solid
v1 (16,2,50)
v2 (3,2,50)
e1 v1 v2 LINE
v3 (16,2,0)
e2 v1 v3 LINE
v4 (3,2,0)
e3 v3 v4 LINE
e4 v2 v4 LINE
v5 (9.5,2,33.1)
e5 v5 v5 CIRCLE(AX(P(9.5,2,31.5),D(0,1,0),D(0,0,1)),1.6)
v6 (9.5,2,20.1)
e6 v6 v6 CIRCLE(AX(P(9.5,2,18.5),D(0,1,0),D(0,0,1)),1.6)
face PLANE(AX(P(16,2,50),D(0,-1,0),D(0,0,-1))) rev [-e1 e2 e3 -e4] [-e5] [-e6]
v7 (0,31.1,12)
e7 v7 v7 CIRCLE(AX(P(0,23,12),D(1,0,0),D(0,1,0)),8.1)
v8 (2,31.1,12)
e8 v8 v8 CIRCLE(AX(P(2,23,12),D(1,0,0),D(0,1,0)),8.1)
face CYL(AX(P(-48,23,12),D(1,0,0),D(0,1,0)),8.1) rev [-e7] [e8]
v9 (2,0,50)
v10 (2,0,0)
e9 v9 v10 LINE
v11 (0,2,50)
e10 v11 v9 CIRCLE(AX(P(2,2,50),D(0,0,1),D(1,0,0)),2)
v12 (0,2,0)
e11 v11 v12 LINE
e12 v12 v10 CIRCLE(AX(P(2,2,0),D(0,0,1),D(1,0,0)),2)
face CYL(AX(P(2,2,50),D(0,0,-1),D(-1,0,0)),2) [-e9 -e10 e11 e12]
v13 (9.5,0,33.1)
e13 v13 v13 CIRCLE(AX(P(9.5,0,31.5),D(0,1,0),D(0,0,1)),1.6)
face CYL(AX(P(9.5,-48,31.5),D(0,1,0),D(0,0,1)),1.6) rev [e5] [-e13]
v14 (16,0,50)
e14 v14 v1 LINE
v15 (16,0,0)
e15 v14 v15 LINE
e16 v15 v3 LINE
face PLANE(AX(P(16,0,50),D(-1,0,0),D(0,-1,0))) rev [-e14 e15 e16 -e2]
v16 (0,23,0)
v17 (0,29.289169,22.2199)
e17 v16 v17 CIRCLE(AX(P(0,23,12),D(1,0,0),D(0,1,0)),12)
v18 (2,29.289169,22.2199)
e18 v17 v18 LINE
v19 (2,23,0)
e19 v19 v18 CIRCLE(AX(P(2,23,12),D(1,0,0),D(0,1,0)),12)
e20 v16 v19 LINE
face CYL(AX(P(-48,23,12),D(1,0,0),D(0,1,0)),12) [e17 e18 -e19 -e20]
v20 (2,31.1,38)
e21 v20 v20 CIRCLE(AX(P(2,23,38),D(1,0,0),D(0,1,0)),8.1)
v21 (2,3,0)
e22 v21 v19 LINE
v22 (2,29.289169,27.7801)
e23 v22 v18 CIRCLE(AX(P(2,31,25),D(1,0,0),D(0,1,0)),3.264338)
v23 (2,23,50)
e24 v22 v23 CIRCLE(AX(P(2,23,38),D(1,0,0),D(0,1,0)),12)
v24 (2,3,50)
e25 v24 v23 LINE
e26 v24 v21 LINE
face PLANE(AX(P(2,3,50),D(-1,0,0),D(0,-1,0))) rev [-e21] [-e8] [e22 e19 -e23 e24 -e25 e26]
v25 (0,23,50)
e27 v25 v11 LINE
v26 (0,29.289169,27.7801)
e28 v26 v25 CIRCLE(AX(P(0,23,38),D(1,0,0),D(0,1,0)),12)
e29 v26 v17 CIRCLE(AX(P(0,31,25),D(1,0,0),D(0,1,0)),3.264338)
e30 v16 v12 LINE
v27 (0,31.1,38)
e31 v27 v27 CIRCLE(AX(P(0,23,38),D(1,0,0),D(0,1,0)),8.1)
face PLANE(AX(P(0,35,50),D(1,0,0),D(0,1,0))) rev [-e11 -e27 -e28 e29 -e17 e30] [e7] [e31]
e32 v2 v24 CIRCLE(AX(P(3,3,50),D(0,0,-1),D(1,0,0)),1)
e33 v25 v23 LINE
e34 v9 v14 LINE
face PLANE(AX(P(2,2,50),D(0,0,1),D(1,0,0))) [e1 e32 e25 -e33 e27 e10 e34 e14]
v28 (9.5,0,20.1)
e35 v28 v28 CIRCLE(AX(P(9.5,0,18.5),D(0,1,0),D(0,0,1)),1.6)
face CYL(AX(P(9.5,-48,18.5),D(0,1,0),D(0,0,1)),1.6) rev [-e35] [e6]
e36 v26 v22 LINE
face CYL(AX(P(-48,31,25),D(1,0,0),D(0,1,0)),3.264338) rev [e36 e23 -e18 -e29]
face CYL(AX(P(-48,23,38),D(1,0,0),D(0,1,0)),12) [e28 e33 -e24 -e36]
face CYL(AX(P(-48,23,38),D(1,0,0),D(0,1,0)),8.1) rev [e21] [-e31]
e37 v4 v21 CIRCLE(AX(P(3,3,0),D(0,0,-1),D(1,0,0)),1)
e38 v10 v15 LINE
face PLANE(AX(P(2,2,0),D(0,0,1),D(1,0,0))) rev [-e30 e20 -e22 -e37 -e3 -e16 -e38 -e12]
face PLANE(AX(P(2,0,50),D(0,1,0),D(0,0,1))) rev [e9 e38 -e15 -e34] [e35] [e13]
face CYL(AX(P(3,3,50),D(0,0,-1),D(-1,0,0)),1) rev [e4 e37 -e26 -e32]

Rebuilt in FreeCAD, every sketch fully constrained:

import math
import FreeCAD as App
import Part
import Sketcher

V = App.Vector
Q = App.Units.Quantity

doc = App.newDocument("Part")
body = doc.addObject("PartDesign::Body", "Body")

# Sketch on XY plane
sketch1 = body.newObject("Sketcher::SketchObject", "Sketch")
sketch1.AttachmentSupport = (doc.getObject("XY_Plane"), [""])
sketch1.MapMode = "FlatFace"
sketch1.addGeometry([
    Part.LineSegment(V(0, 35, 0), V(0, 2, 0)),  # 0
    Part.ArcOfCircle(Part.Circle(V(2, 2, 0), V(0, 0, 1), 2), math.radians(-180), math.radians(-90)),  # 1
    Part.LineSegment(V(2, 0, 0), V(16, 0, 0)),  # 2
    Part.LineSegment(V(16, 0, 0), V(16, 2, 0)),  # 3
    Part.LineSegment(V(16, 2, 0), V(3, 2, 0)),  # 4
    Part.ArcOfCircle(Part.Circle(V(3, 3, 0), V(0, 0, 1), 1), math.radians(-180), math.radians(-90)),  # 5
    Part.LineSegment(V(2, 3, 0), V(2, 35, 0)),  # 6
    Part.LineSegment(V(2, 35, 0), V(0, 35, 0)),  # 7
], False)
sketch1.addConstraint([
    Sketcher.Constraint("Tangent", 0, 2, 1, 1),
    Sketcher.Constraint("Tangent", 1, 2, 2, 1),
    Sketcher.Constraint("Coincident", 2, 2, 3, 1),
    Sketcher.Constraint("Coincident", 3, 2, 4, 1),
    Sketcher.Constraint("Tangent", 4, 2, 5, 2),
    Sketcher.Constraint("Tangent", 5, 1, 6, 1),
    Sketcher.Constraint("Coincident", 6, 2, 7, 1),
    Sketcher.Constraint("Coincident", 7, 2, 0, 1),
    Sketcher.Constraint("Vertical", 0),
    Sketcher.Constraint("Horizontal", 2),
    Sketcher.Constraint("Vertical", 3),
    Sketcher.Constraint("Horizontal", 4),
    Sketcher.Constraint("Vertical", 6),
    Sketcher.Constraint("Horizontal", 7),
    Sketcher.Constraint("PointOnObject", 0, 2, -2),
    Sketcher.Constraint("PointOnObject", 1, 2, -1),
    Sketcher.Constraint("Horizontal", 0, 2, 3, 2),
    Sketcher.Constraint("Vertical", 1, 2, 5, 1),
    Sketcher.Constraint("Radius", 1, Q("2 mm")),
    Sketcher.Constraint("Radius", 5, Q("1 mm")),
    Sketcher.Constraint("DistanceX", 2, 1, 2, 2, Q("14 mm")),
    Sketcher.Constraint("DistanceY", 0, 2, 0, 1, Q("33 mm")),
])
pad1 = body.newObject("PartDesign::Pad", "Pad")
pad1.Profile = sketch1
pad1.Length = 50

# Sketch on XZ plane
sketch2 = body.newObject("Sketcher::SketchObject", "Sketch001")
sketch2.AttachmentSupport = (doc.getObject("XZ_Plane"), [""])
sketch2.MapMode = "FlatFace"
sketch2.AttachmentOffset = App.Placement(V(0, 0, -2), App.Rotation())
sketch2.addGeometry([
    Part.Circle(V(9.5, 18.5, 0), V(0, 0, 1), 1.6),
    Part.Circle(V(9.5, 31.5, 0), V(0, 0, 1), 1.6),
], False)
sketch2.addConstraint([
    Sketcher.Constraint("Equal", 0, 1),
    Sketcher.Constraint("Vertical", 0, 3, 1, 3),
    Sketcher.Constraint("Diameter", 0, Q("3.2 mm")),
    Sketcher.Constraint("DistanceY", 0, 3, 1, 3, Q("13 mm")),
    Sketcher.Constraint("DistanceX", -1, 1, 0, 3, Q("9.5 mm")),
    Sketcher.Constraint("DistanceY", -1, 1, 0, 3, Q("18.5 mm")),
])
pocket1 = body.newObject("PartDesign::Pocket", "Pocket")
pocket1.Profile = sketch2
pocket1.Length = 50
pocket1.Reversed = True

# Sketch on YZ plane
sketch3 = body.newObject("Sketcher::SketchObject", "Sketch002")
sketch3.AttachmentSupport = (doc.getObject("YZ_Plane"), [""])
sketch3.MapMode = "FlatFace"
sketch3.AttachmentOffset = App.Placement(V(0, 0, 2), App.Rotation())
sketch3.addGeometry([
    Part.Circle(V(23, 12, 0), V(0, 0, 1), 8.1),  # 0
    Part.Circle(V(23, 38, 0), V(0, 0, 1), 8.1),  # 1
    Part.ArcOfCircle(Part.Circle(V(23, 38, 0), V(0, 0, 1), 12), math.radians(0), math.radians(90)),  # 2
    Part.LineSegment(V(35, 38, 0), V(35, 50, 0)),  # 3
    Part.LineSegment(V(35, 50, 0), V(23, 50, 0)),  # 4
    Part.ArcOfCircle(Part.Circle(V(23, 12, 0), V(0, 0, 1), 12), math.radians(0), math.radians(58)),  # 5
    Part.LineSegment(V(35, 12, 0), V(35, 38, 0)),  # 6
    Part.ArcOfCircle(Part.Circle(V(23, 38, 0), V(0, 0, 1), 12), math.radians(-58), math.radians(0)),  # 7
    Part.ArcOfCircle(Part.Circle(V(31, 25, 0), V(0, 0, 1), 3.3), math.radians(122), math.radians(238)),  # 8
    Part.LineSegment(V(35, 0, 0), V(35, 12, 0)),  # 9
    Part.ArcOfCircle(Part.Circle(V(23, 12, 0), V(0, 0, 1), 12), math.radians(-90), math.radians(0)),  # 10
    Part.LineSegment(V(23, 0, 0), V(35, 0, 0)),  # 11
], False)
sketch3.addConstraint([
    Sketcher.Constraint("Tangent", 2, 1, 3, 1),
    Sketcher.Constraint("Coincident", 3, 2, 4, 1),
    Sketcher.Constraint("Tangent", 4, 2, 2, 2),
    Sketcher.Constraint("Tangent", 5, 1, 6, 1),
    Sketcher.Constraint("Tangent", 6, 2, 7, 2),
    Sketcher.Constraint("Tangent", 7, 1, 8, 1),
    Sketcher.Constraint("Tangent", 8, 2, 5, 2),
    Sketcher.Constraint("Tangent", 9, 2, 10, 2),
    Sketcher.Constraint("Tangent", 10, 1, 11, 1),
    Sketcher.Constraint("Coincident", 11, 2, 9, 1),
    Sketcher.Constraint("Vertical", 3),
    Sketcher.Constraint("Horizontal", 4),
    Sketcher.Constraint("Vertical", 6),
    Sketcher.Constraint("Vertical", 9),
    Sketcher.Constraint("Horizontal", 11),
    Sketcher.Constraint("Coincident", 2, 3, 1, 3),
    Sketcher.Constraint("Coincident", 5, 3, 0, 3),
    Sketcher.Constraint("Coincident", 7, 3, 1, 3),
    Sketcher.Constraint("Coincident", 10, 3, 0, 3),
    Sketcher.Constraint("Equal", 0, 1),
    Sketcher.Constraint("Equal", 2, 5),
    Sketcher.Constraint("Equal", 5, 7),
    Sketcher.Constraint("Equal", 7, 10),
    Sketcher.Constraint("PointOnObject", 10, 1, -1),
    Sketcher.Constraint("Radius", 2, Q("12 mm")),
    Sketcher.Constraint("Diameter", 0, Q("16.2 mm")),
    Sketcher.Constraint("DistanceY", 6, 1, 6, 2, Q("26 mm")),
    Sketcher.Constraint("DistanceX", -1, 1, 0, 3, Q("23 mm")),
    Sketcher.Constraint("DistanceX", -1, 1, 8, 3, Q("31 mm")),
])
pocket2 = body.newObject("PartDesign::Pocket", "Pocket001")
pocket2.Profile = sketch3
pocket2.Length = 50

doc.recompute()
